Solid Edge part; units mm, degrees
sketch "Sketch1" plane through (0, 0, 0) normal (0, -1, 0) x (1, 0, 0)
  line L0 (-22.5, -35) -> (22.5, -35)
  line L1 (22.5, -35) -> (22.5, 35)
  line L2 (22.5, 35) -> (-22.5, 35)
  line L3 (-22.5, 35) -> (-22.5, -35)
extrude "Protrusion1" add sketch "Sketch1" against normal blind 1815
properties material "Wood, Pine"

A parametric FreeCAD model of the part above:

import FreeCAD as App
import Part
import Sketcher

V = App.Vector
Q = App.Units.Quantity


def add_polygon(sketch, points):
    """Adds a closed chain of lines whose ends are joined by coincident constraints."""
    first, n = sketch.GeometryCount, len(points)
    for a, b in zip(points, points[1:] + points[:1]):
        sketch.addGeometry(Part.LineSegment(App.Vector(*a, 0), App.Vector(*b, 0)), False)
    for i in range(n):
        sketch.addConstraint(Sketcher.Constraint("Coincident", first + i, 2, first + (i + 1) % n, 1))

doc = App.newDocument("Part")
body = doc.addObject("PartDesign::Body", "Body")

# Sketch on XZ plane
sketch1 = body.newObject("Sketcher::SketchObject", "Sketch")
sketch1.AttachmentSupport = (doc.getObject("XZ_Plane"), [""])
sketch1.MapMode = "FlatFace"
add_polygon(sketch1, [(-22, 35), (-22, -35), (22, -35), (22, 35)])  # lines 0-3
sketch1.addConstraint(Sketcher.Constraint("Vertical", 0))
sketch1.addConstraint(Sketcher.Constraint("Horizontal", 1))
sketch1.addConstraint(Sketcher.Constraint("Vertical", 2))
sketch1.addConstraint(Sketcher.Constraint("Horizontal", 3))
sketch1.addConstraint(Sketcher.Constraint("Symmetric", 0, 2, 2, 2, -1, 1))
sketch1.addConstraint(Sketcher.Constraint("DistanceX", 1, 1, 1, 2, Q("45 mm")))
sketch1.addConstraint(Sketcher.Constraint("DistanceY", 0, 2, 0, 1, Q("70 mm")))
pad1 = body.newObject("PartDesign::Pad", "Pad")
pad1.Profile = sketch1
pad1.Length = 1815
pad1.Reversed = True

doc.recompute()
